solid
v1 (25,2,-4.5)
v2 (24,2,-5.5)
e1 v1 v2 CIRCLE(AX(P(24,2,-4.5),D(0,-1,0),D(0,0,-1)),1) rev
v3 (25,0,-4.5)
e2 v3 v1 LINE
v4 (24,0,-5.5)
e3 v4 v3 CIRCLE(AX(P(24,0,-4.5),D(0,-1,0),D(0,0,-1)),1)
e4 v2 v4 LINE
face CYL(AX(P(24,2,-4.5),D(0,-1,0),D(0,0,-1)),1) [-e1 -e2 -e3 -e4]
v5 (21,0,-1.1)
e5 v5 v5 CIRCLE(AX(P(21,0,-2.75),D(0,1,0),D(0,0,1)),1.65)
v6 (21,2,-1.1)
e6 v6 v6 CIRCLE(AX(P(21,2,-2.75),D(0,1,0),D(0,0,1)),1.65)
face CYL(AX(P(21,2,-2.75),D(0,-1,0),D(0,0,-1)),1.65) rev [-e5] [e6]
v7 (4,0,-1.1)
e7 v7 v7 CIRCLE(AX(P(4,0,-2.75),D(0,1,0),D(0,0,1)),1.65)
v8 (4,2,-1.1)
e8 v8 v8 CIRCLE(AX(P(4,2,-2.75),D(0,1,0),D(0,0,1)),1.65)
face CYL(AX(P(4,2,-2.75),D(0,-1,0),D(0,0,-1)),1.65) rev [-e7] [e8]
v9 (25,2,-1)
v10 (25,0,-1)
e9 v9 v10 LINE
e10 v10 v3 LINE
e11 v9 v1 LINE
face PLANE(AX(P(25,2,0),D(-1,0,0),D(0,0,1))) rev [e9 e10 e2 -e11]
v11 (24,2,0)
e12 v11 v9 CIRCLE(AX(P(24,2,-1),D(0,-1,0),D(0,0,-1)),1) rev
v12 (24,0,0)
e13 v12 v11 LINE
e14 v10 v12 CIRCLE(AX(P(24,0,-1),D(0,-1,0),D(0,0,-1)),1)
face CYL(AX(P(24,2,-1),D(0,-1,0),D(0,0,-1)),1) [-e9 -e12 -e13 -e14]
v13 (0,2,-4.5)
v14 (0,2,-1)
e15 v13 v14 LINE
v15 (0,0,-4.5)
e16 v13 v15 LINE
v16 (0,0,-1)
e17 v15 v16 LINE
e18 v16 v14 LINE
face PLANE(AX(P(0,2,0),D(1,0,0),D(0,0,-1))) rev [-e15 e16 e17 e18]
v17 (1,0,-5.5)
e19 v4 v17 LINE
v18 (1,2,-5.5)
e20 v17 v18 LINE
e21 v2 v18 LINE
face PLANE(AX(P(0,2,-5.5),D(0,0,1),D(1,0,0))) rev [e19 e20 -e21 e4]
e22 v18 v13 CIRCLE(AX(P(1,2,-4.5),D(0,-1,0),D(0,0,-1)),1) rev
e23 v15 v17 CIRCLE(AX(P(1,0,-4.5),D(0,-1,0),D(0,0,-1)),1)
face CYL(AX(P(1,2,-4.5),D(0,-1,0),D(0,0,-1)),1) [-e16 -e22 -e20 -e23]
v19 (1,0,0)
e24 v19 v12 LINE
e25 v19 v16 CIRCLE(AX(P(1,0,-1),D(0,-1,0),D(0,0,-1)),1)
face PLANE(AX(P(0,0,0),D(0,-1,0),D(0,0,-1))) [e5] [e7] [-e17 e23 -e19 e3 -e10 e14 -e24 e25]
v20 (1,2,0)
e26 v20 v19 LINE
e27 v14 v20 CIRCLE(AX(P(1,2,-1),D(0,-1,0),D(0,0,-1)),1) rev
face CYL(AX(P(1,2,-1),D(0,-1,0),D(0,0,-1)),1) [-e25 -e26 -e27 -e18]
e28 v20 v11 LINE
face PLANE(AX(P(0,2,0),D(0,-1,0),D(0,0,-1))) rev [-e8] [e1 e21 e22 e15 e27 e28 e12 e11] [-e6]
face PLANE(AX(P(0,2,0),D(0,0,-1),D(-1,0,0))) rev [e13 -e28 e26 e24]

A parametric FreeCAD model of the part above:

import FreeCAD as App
import Part
import Sketcher
Q = App.Units.Quantity


def edges_at(feature, points):
    """Names of the edges that pass closest to the given points."""
    edges = feature.Shape.Edges
    near = lambda p: min(range(len(edges)), key=lambda i: edges[i].distToShape(Part.Vertex(*p))[0])
    return sorted({f"Edge{near(p) + 1}" for p in points})


def add_polygon(sketch, points):
    """Adds a closed chain of lines whose ends are joined by coincident constraints."""
    first, n = sketch.GeometryCount, len(points)
    for a, b in zip(points, points[1:] + points[:1]):
        sketch.addGeometry(Part.LineSegment(App.Vector(*a, 0), App.Vector(*b, 0)), False)
    for i in range(n):
        sketch.addConstraint(Sketcher.Constraint("Coincident", first + i, 2, first + (i + 1) % n, 1))

doc = App.newDocument("Part")
body = doc.addObject("PartDesign::Body", "Body")

sketch1 = body.newObject("Sketcher::SketchObject", "Sketch")
sketch1.AttachmentSupport = (doc.getObject("XZ_Plane"), [""])
sketch1.MapMode = "FlatFace"
add_polygon(sketch1, [(0, -5.5), (0, 0), (25, 0), (25, -5.5)])
sketch1.addGeometry(Part.Circle(App.Vector(4, -2.8, 0), App.Vector(0, 0, 1), 1.6), False)
sketch1.addGeometry(Part.Circle(App.Vector(21, -2.8, 0), App.Vector(0, 0, 1), 1.6), False)
sketch1.addConstraint([
    Sketcher.Constraint("Vertical", 0),
    Sketcher.Constraint("Horizontal", 1),
    Sketcher.Constraint("Vertical", 2),
    Sketcher.Constraint("Horizontal", 3),
    Sketcher.Constraint("Coincident", 0, 2, -1, 1),
    Sketcher.Constraint("Equal", 4, 5),
    Sketcher.Constraint("Horizontal", 4, 3, 5, 3),
    Sketcher.Constraint("Diameter", 4, Q("3.3 mm")),
    Sketcher.Constraint("DistanceX", 1, 1, 1, 2, Q("25 mm")),
    Sketcher.Constraint("DistanceY", 0, 1, 0, 2, Q("5.5 mm")),
    Sketcher.Constraint("DistanceX", -1, 1, 4, 3, Q("4 mm")),
    Sketcher.Constraint("DistanceX", -1, 1, 5, 3, Q("21 mm")),
    Sketcher.Constraint("DistanceY", 4, 3, -1, 1, Q("2.75 mm")),
])
pad1 = body.newObject("PartDesign::Pad", "Pad")
pad1.Profile = sketch1
pad1.Length = 2
pad1.Reversed = True
doc.recompute()

fillet = body.newObject("PartDesign::Fillet", "Fillet")
fillet.Base = (pad1, edges_at(pad1, [
    (0, 1, -5.5),
    (25, 1, -5.5),
    (25, 1, 0),
    (0, 1, 0),
]))
fillet.Radius = 1

doc.recompute()
